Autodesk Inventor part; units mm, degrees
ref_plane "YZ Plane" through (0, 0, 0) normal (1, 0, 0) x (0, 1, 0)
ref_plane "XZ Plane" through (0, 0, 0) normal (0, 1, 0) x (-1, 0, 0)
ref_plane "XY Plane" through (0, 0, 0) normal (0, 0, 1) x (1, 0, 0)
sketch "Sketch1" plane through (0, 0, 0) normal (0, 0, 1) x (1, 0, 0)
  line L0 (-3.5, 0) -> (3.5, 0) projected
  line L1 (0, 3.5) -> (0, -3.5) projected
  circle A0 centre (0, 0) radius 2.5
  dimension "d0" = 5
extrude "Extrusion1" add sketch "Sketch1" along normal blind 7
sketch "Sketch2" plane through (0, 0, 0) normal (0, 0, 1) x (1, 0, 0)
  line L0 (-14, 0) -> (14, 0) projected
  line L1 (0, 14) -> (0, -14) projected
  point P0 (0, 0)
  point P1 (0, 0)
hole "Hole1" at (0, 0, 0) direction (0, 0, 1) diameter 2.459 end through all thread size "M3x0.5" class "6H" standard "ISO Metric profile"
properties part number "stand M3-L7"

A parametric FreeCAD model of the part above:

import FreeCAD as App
import Part
import Sketcher
from FreeCAD import Vector

doc = App.newDocument("Part")
body = doc.addObject("PartDesign::Body", "Body")

# Sketch on XY plane
sketch1 = body.newObject("Sketcher::SketchObject", "Sketch")
sketch1.AttachmentSupport = (doc.getObject("XY_Plane"), [""])
sketch1.MapMode = "FlatFace"
sketch1.addGeometry(Part.Circle(Vector(0, 0, 0), Vector(0, 0, 1), 2.5), False)
sketch1.addConstraint([
    Sketcher.Constraint("Coincident", 0, 3, -1, 1),
    Sketcher.Constraint("Diameter", 0, 5.0),
])
pad1 = body.newObject("PartDesign::Pad", "Pad")
pad1.Profile = sketch1
pad1.Length = 7

# Sketch on XY plane
sketch2 = body.newObject("Sketcher::SketchObject", "Sketch001")
sketch2.AttachmentSupport = (doc.getObject("XY_Plane"), [""])
sketch2.MapMode = "FlatFace"
sketch2.addGeometry(Part.Circle(Vector(0, 0, 0), Vector(0, 0, 1), 1.2), False)
sketch2.addConstraint([
    Sketcher.Constraint("Coincident", 0, 3, -1, 1),
    Sketcher.Constraint("Diameter", 0, 2.459),
])
doc.recompute()
hole = body.newObject("PartDesign::Hole", "Hole")
hole.Profile = sketch2
hole.ThreadType = "None"
hole.Diameter = 2.459
hole.DepthType = "ThroughAll"
hole.Reversed = True

doc.recompute()
